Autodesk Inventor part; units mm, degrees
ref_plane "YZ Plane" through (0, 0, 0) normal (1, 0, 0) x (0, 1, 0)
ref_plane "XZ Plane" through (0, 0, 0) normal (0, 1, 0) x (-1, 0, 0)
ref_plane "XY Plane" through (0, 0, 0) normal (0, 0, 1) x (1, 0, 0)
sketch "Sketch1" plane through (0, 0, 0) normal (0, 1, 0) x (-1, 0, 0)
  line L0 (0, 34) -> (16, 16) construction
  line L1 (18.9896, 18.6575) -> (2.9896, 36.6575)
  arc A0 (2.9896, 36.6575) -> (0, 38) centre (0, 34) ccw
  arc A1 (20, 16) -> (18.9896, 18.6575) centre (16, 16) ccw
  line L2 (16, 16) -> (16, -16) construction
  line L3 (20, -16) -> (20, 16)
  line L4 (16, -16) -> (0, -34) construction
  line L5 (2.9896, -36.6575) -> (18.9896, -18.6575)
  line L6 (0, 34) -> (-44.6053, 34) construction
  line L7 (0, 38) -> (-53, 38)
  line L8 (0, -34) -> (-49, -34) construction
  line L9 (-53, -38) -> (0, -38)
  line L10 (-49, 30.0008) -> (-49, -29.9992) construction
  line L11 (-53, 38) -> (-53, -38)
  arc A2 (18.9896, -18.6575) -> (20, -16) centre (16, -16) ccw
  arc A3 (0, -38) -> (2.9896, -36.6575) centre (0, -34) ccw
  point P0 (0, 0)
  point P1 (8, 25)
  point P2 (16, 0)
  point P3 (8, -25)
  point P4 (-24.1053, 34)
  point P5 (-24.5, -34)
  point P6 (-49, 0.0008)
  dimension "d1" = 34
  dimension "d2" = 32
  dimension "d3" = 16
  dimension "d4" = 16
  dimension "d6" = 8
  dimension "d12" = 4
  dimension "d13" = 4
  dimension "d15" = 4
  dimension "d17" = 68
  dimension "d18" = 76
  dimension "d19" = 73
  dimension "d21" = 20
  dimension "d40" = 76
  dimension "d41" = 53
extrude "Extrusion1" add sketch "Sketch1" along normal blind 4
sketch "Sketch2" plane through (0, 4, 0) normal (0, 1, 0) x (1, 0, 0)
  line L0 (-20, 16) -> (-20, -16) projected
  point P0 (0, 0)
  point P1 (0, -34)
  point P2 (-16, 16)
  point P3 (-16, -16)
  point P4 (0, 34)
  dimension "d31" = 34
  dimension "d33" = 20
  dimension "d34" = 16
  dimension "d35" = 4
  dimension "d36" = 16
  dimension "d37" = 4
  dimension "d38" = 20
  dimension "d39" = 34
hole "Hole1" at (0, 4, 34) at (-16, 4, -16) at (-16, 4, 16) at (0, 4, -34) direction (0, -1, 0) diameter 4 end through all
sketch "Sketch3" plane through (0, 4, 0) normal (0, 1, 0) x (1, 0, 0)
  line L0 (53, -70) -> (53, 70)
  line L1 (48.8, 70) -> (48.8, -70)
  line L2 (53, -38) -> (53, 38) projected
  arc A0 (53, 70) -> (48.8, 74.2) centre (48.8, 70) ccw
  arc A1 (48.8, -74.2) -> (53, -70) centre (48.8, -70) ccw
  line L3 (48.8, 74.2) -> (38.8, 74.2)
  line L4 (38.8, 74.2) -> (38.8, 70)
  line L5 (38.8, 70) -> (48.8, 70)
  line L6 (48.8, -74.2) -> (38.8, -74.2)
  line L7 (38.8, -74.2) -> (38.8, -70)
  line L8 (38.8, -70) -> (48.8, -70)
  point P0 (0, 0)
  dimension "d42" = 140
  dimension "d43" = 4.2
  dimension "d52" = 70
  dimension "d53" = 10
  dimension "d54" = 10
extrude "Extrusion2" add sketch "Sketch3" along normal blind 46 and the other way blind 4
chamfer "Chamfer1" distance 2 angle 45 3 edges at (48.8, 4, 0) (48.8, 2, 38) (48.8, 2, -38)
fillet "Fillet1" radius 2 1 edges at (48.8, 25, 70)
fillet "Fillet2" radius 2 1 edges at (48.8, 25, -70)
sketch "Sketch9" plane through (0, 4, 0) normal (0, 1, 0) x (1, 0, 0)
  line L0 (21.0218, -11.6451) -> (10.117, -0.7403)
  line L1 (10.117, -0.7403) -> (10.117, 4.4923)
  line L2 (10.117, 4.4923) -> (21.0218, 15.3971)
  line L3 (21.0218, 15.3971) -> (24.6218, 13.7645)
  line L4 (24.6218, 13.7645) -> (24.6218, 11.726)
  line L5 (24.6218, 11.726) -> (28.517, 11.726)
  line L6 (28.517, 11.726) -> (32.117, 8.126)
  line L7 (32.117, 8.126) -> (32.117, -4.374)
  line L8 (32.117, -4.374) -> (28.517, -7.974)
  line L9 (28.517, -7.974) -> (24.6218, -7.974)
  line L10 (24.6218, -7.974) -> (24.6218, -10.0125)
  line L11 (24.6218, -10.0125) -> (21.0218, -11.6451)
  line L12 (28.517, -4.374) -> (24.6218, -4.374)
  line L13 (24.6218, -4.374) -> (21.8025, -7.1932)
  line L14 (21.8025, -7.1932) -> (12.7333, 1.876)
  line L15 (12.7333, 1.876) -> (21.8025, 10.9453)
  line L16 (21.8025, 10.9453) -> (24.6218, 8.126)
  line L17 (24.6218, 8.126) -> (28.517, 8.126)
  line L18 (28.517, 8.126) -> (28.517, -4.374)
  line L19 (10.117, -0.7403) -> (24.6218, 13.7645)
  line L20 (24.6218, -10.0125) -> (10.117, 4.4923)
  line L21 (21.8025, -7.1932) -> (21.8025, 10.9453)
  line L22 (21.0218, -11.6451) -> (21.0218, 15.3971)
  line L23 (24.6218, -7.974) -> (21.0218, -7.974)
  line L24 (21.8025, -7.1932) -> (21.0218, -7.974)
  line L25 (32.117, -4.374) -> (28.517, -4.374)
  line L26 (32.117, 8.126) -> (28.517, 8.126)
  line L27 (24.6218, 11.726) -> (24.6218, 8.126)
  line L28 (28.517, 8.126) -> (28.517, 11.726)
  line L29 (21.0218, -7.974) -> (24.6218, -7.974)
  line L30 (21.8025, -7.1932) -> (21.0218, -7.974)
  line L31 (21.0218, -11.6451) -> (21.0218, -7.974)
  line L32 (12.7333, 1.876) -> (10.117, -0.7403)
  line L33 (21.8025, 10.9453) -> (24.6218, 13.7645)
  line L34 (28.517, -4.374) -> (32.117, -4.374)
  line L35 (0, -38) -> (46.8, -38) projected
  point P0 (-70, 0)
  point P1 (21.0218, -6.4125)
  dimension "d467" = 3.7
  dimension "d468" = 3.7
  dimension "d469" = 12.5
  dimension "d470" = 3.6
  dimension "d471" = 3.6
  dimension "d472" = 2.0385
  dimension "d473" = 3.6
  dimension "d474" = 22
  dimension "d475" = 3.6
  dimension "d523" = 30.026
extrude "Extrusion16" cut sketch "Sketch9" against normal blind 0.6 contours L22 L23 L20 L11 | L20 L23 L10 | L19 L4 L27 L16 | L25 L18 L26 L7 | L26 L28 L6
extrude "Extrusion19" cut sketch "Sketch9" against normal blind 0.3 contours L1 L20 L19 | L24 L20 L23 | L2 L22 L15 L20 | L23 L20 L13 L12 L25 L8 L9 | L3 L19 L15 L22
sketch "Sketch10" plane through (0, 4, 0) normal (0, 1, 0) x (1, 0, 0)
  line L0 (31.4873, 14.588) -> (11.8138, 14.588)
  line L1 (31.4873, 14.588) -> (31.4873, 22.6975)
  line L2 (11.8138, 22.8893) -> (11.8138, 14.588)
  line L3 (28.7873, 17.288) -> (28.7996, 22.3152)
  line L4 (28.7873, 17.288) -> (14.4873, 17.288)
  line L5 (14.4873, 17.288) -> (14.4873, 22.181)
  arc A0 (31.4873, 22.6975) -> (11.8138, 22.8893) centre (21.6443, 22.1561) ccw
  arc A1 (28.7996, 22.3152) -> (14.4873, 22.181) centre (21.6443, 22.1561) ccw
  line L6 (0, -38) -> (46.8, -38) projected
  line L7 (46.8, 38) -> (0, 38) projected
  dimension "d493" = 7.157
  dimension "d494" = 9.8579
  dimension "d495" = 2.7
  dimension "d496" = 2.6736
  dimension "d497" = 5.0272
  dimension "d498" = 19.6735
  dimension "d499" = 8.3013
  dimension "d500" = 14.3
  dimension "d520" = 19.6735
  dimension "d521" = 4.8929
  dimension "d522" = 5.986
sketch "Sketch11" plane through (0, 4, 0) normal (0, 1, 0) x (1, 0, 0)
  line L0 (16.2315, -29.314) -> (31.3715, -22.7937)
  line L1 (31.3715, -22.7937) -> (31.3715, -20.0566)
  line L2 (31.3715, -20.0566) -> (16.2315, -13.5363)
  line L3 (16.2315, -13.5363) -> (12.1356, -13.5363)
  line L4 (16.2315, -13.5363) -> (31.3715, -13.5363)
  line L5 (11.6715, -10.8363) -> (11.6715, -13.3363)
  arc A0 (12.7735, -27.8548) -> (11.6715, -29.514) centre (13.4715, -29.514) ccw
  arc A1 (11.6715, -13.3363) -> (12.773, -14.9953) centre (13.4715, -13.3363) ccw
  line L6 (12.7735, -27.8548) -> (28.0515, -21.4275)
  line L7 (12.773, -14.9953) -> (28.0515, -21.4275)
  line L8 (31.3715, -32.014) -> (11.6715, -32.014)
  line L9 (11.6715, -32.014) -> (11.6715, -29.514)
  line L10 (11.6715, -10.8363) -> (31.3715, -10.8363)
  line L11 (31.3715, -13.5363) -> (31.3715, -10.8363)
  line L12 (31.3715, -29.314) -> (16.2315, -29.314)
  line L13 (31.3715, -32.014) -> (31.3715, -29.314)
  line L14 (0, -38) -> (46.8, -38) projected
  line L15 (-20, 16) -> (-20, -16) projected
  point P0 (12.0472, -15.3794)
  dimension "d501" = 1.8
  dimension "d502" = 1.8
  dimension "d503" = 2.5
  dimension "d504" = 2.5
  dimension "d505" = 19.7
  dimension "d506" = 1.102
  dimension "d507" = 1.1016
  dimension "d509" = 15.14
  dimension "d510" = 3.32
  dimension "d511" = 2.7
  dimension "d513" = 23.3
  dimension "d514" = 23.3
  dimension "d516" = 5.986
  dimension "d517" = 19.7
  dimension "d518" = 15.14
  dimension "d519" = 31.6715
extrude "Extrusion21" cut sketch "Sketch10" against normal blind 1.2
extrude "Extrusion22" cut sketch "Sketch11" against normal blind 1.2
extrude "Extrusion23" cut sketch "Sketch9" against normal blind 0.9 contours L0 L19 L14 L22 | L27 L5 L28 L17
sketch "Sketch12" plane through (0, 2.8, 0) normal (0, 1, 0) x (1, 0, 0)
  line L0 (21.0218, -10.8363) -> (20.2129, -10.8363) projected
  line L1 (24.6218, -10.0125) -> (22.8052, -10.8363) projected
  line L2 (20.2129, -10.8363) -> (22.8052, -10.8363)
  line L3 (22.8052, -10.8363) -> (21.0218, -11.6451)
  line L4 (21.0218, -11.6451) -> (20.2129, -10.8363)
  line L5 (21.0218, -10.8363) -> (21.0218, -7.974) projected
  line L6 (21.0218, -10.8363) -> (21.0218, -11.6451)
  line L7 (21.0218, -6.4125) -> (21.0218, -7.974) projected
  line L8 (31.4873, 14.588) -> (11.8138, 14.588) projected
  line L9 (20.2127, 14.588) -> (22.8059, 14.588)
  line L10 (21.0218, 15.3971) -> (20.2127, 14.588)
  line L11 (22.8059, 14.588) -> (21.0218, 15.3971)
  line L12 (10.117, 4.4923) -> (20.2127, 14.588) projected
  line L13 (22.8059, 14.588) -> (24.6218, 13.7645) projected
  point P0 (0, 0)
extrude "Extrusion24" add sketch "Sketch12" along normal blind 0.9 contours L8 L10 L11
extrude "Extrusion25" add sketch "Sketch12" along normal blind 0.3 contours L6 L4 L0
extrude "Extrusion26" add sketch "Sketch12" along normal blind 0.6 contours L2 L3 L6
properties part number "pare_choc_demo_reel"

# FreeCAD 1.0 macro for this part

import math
import FreeCAD as App
import Part
import Sketcher
from FreeCAD import Vector
Q = App.Units.Quantity


def edges_at(feature, points):
    """Names of the edges that pass closest to the given points."""
    edges = feature.Shape.Edges
    near = lambda p: min(range(len(edges)), key=lambda i: edges[i].distToShape(Part.Vertex(*p))[0])
    return sorted({f"Edge{near(p) + 1}" for p in points})

doc = App.newDocument("Part")
body = doc.addObject("PartDesign::Body", "Body")

# Sketch on XZ plane
sketch1 = doc.addObject("Sketcher::SketchObject", "Sketch")
body.addObject(sketch1)
sketch1.AttachmentSupport = (doc.XZ_Plane, [""])
sketch1.MapMode = "FlatFace"
sketch1.addGeometry(Part.ArcOfCircle(Part.Circle(Vector(-16, 16, 0), Vector(0, 0, 1), 4), math.radians(138.365628), math.radians(180)), False)
sketch1.addGeometry(Part.LineSegment(Vector(-18.9896, 18.6575, 0), Vector(-2.9896, 36.6575, 0)), False)
sketch1.addGeometry(Part.ArcOfCircle(Part.Circle(Vector(0, 34, 0), Vector(0, 0, 1), 4.000002), math.radians(90), math.radians(138.365628)), False)
sketch1.addGeometry(Part.LineSegment(Vector(0, 38, 0), Vector(53, 38, 0)), False)
sketch1.addGeometry(Part.LineSegment(Vector(53, 38, 0), Vector(53, -38, 0)), False)
sketch1.addGeometry(Part.LineSegment(Vector(53, -38, 0), Vector(0, -38, 0)), False)
sketch1.addGeometry(Part.ArcOfCircle(Part.Circle(Vector(0, -34, 0), Vector(0, 0, 1), 4), math.radians(-138.365628), math.radians(-90)), False)
sketch1.addGeometry(Part.LineSegment(Vector(-2.9896, -36.6575, 0), Vector(-18.9896, -18.6575, 0)), False)
sketch1.addGeometry(Part.ArcOfCircle(Part.Circle(Vector(-16, -16, 0), Vector(0, 0, 1), 4.000002), math.radians(180), math.radians(221.634372)), False)
sketch1.addGeometry(Part.LineSegment(Vector(-20, -16, 0), Vector(-20, 16, 0)), False)
sketch1.addConstraint(Sketcher.Constraint("Tangent", 0, 1, 1, 1))
sketch1.addConstraint(Sketcher.Constraint("Tangent", 1, 2, 2, 2))
sketch1.addConstraint(Sketcher.Constraint("Tangent", 2, 1, 3, 1))
sketch1.addConstraint(Sketcher.Constraint("Coincident", 3, 2, 4, 1))
sketch1.addConstraint(Sketcher.Constraint("Coincident", 4, 2, 5, 1))
sketch1.addConstraint(Sketcher.Constraint("Tangent", 5, 2, 6, 2))
sketch1.addConstraint(Sketcher.Constraint("Tangent", 6, 1, 7, 1))
sketch1.addConstraint(Sketcher.Constraint("Tangent", 7, 2, 8, 2))
sketch1.addConstraint(Sketcher.Constraint("Tangent", 8, 1, 9, 1))
sketch1.addConstraint(Sketcher.Constraint("Tangent", 9, 2, 0, 2))
sketch1.addConstraint(Sketcher.Constraint("Horizontal", 3))
sketch1.addConstraint(Sketcher.Constraint("Vertical", 4))
sketch1.addConstraint(Sketcher.Constraint("Horizontal", 5))
sketch1.addConstraint(Sketcher.Constraint("Vertical", 9))
sketch1.addConstraint(Sketcher.Constraint("Equal", 0, 2))
sketch1.addConstraint(Sketcher.Constraint("Equal", 2, 6))
sketch1.addConstraint(Sketcher.Constraint("Equal", 6, 8))
sketch1.addConstraint(Sketcher.Constraint("Symmetric", 2, 3, 6, 3, -1, 1))
sketch1.addConstraint(Sketcher.Constraint("Symmetric", 1, 2, 6, 1, -1))
sketch1.addConstraint(Sketcher.Constraint("Radius", 0, 4.0))
sketch1.addConstraint(Sketcher.Constraint("DistanceX", 3, 1, 3, 2, 53.0))
sketch1.addConstraint(Sketcher.Constraint("DistanceY", 4, 2, 4, 1, 76.0))
sketch1.addConstraint(Sketcher.Constraint("DistanceY", 9, 1, 9, 2, 32.0))
sketch1.addConstraint(Sketcher.Constraint("DistanceX", 0, 3, -1, 1, 16.0))
pad1 = doc.addObject("PartDesign::Pad", "Pad")
body.addObject(pad1)
pad1.Profile = sketch1
pad1.Length = 4
pad1.Reversed = True

# Sketch on XZ plane
sketch2 = doc.addObject("Sketcher::SketchObject", "Sketch001")
body.addObject(sketch2)
sketch2.AttachmentSupport = (doc.XZ_Plane, [""])
sketch2.MapMode = "FlatFace"
sketch2.AttachmentOffset = App.Placement(Vector(0, 0, -4), App.Rotation())
sketch2.addGeometry(Part.Circle(Vector(0, 34, 0), Vector(0, 0, 1), 2), False)
sketch2.addGeometry(Part.Circle(Vector(-16, -16, 0), Vector(0, 0, 1), 2), False)
sketch2.addGeometry(Part.Circle(Vector(-16, 16, 0), Vector(0, 0, 1), 2), False)
sketch2.addGeometry(Part.Circle(Vector(0, -34, 0), Vector(0, 0, 1), 2), False)
sketch2.addConstraint(Sketcher.Constraint("Equal", 0, 1))
sketch2.addConstraint(Sketcher.Constraint("Equal", 1, 2))
sketch2.addConstraint(Sketcher.Constraint("Equal", 2, 3))
sketch2.addConstraint(Sketcher.Constraint("Symmetric", 0, 3, 3, 3, -1, 1))
sketch2.addConstraint(Sketcher.Constraint("Symmetric", 1, 3, 2, 3, -1))
sketch2.addConstraint(Sketcher.Constraint("PointOnObject", 0, 3, -2))
sketch2.addConstraint(Sketcher.Constraint("Diameter", 0, 4.0))
sketch2.addConstraint(Sketcher.Constraint("DistanceY", -1, 1, 0, 3, 34.0))
sketch2.addConstraint(Sketcher.Constraint("DistanceX", 1, 3, -1, 1, 16.0))
sketch2.addConstraint(Sketcher.Constraint("DistanceY", 1, 3, -1, 1, 16.0))
doc.recompute()
hole = doc.addObject("PartDesign::Hole", "Hole")
body.addObject(hole)
hole.Profile = sketch2
hole.ThreadType = "None"
hole.Diameter = 4
hole.DepthType = "ThroughAll"
hole.Reversed = True

# Sketch on XZ plane
sketch3 = doc.addObject("Sketcher::SketchObject", "Sketch002")
body.addObject(sketch3)
sketch3.AttachmentSupport = (doc.XZ_Plane, [""])
sketch3.MapMode = "FlatFace"
sketch3.AttachmentOffset = App.Placement(Vector(0, 0, -4), App.Rotation())
sketch3.addGeometry(Part.ArcOfCircle(Part.Circle(Vector(48.8, 70, 0), Vector(0, 0, 1), 4.2), math.radians(0), math.radians(90)), False)
sketch3.addGeometry(Part.LineSegment(Vector(53, 70, 0), Vector(53, -70, 0)), False)
sketch3.addGeometry(Part.ArcOfCircle(Part.Circle(Vector(48.8, -70, 0), Vector(0, 0, 1), 4.2), math.radians(-90), math.radians(0)), False)
sketch3.addGeometry(Part.LineSegment(Vector(48.8, -74.2, 0), Vector(38.8, -74.2, 0)), False)
sketch3.addGeometry(Part.LineSegment(Vector(38.8, -74.2, 0), Vector(38.8, -70, 0)), False)
sketch3.addGeometry(Part.LineSegment(Vector(38.8, -70, 0), Vector(48.8, -70, 0)), False)
sketch3.addGeometry(Part.LineSegment(Vector(48.8, -70, 0), Vector(48.8, 70, 0)), False)
sketch3.addGeometry(Part.LineSegment(Vector(48.8, 70, 0), Vector(38.8, 70, 0)), False)
sketch3.addGeometry(Part.LineSegment(Vector(38.8, 70, 0), Vector(38.8, 74.2, 0)), False)
sketch3.addGeometry(Part.LineSegment(Vector(38.8, 74.2, 0), Vector(48.8, 74.2, 0)), False)
sketch3.addConstraint(Sketcher.Constraint("Tangent", 0, 1, 1, 1))
sketch3.addConstraint(Sketcher.Constraint("Tangent", 1, 2, 2, 2))
sketch3.addConstraint(Sketcher.Constraint("Tangent", 2, 1, 3, 1))
sketch3.addConstraint(Sketcher.Constraint("Coincident", 3, 2, 4, 1))
sketch3.addConstraint(Sketcher.Constraint("Coincident", 4, 2, 5, 1))
sketch3.addConstraint(Sketcher.Constraint("Coincident", 5, 2, 6, 1))
sketch3.addConstraint(Sketcher.Constraint("Coincident", 6, 2, 7, 1))
sketch3.addConstraint(Sketcher.Constraint("Coincident", 7, 2, 8, 1))
sketch3.addConstraint(Sketcher.Constraint("Coincident", 8, 2, 9, 1))
sketch3.addConstraint(Sketcher.Constraint("Tangent", 9, 2, 0, 2))
sketch3.addConstraint(Sketcher.Constraint("Vertical", 1))
sketch3.addConstraint(Sketcher.Constraint("Horizontal", 3))
sketch3.addConstraint(Sketcher.Constraint("Vertical", 4))
sketch3.addConstraint(Sketcher.Constraint("Horizontal", 5))
sketch3.addConstraint(Sketcher.Constraint("Vertical", 6))
sketch3.addConstraint(Sketcher.Constraint("Horizontal", 7))
sketch3.addConstraint(Sketcher.Constraint("Vertical", 8))
sketch3.addConstraint(Sketcher.Constraint("Horizontal", 9))
sketch3.addConstraint(Sketcher.Constraint("Coincident", 5, 2, 2, 3))
sketch3.addConstraint(Sketcher.Constraint("Coincident", 6, 2, 0, 3))
sketch3.addConstraint(Sketcher.Constraint("Symmetric", 4, 2, 7, 2, -1))
sketch3.addConstraint(Sketcher.Constraint("Radius", 0, 4.2))
sketch3.addConstraint(Sketcher.Constraint("DistanceX", 3, 2, 3, 1, 10.0))
sketch3.addConstraint(Sketcher.Constraint("DistanceY", 1, 2, 1, 1, 140.0))
sketch3.addConstraint(Sketcher.Constraint("DistanceX", -1, 1, 0, 1, 53.0))
pad2 = doc.addObject("PartDesign::Pad", "Pad001")
body.addObject(pad2)
pad2.Profile = sketch3
pad2.Type = "TwoLengths"
pad2.Length = 46
pad2.Length2 = 4
pad2.Reversed = True
doc.recompute()

chamfer = doc.addObject("PartDesign::Chamfer", "Chamfer")
body.addObject(chamfer)
chamfer.Base = (pad2, edges_at(pad2, [(48.8, 4, 0), (48.8, 2, 38), (48.8, 2, -38)]))
chamfer.Size = 2
doc.recompute()

fillet = doc.addObject("PartDesign::Fillet", "Fillet")
body.addObject(fillet)
fillet.Base = (chamfer, edges_at(chamfer, [(48.8, 25, 70)]))
fillet.Radius = 2
doc.recompute()

fillet2 = doc.addObject("PartDesign::Fillet", "Fillet001")
body.addObject(fillet2)
fillet2.Base = (fillet, edges_at(fillet, [(48.8, 25, -70)]))
fillet2.Radius = 2

# Sketch on XZ plane
sketch4 = doc.addObject("Sketcher::SketchObject", "Sketch003")
body.addObject(sketch4)
sketch4.AttachmentSupport = (doc.XZ_Plane, [""])
sketch4.MapMode = "FlatFace"
sketch4.AttachmentOffset = App.Placement(Vector(0, 0, -4), App.Rotation())
sketch4.addGeometry(Part.LineSegment(Vector(21.0218, 7.974, 0), Vector(21.0218, 11.6451, 0)), False)
sketch4.addGeometry(Part.LineSegment(Vector(21.0218, 11.6451, 0), Vector(24.6218, 10.0125, 0)), False)
sketch4.addGeometry(Part.LineSegment(Vector(24.6218, 10.0125, 0), Vector(24.6218, 7.974, 0)), False)
sketch4.addGeometry(Part.LineSegment(Vector(24.6218, 7.974, 0), Vector(21.0218, 7.974, 0)), False)
sketch4.addGeometry(Part.LineSegment(Vector(24.6218, -13.7645, 0), Vector(21.80255, -10.94525, 0)), False)
sketch4.addGeometry(Part.LineSegment(Vector(21.8025, -10.9453, 0), Vector(24.6218, -8.126, 0)), False)
sketch4.addGeometry(Part.LineSegment(Vector(24.6218, -8.126, 0), Vector(24.6218, -13.7645, 0)), False)
sketch4.addGeometry(Part.LineSegment(Vector(28.517, 4.374, 0), Vector(32.117, 4.374, 0)), False)
sketch4.addGeometry(Part.LineSegment(Vector(32.117, 4.374, 0), Vector(32.117, -8.126, 0)), False)
sketch4.addGeometry(Part.LineSegment(Vector(32.117, -8.126, 0), Vector(28.517, -11.726, 0)), False)
sketch4.addGeometry(Part.LineSegment(Vector(28.517, -11.726, 0), Vector(28.517, 4.374, 0)), False)
sketch4.addConstraint(Sketcher.Constraint("Coincident", 0, 2, 1, 1))
sketch4.addConstraint(Sketcher.Constraint("Coincident", 1, 2, 2, 1))
sketch4.addConstraint(Sketcher.Constraint("Coincident", 2, 2, 3, 1))
sketch4.addConstraint(Sketcher.Constraint("Coincident", 3, 2, 0, 1))
sketch4.addConstraint(Sketcher.Constraint("Coincident", 4, 2, 5, 1))
sketch4.addConstraint(Sketcher.Constraint("Coincident", 5, 2, 6, 1))
sketch4.addConstraint(Sketcher.Constraint("Coincident", 6, 2, 4, 1))
sketch4.addConstraint(Sketcher.Constraint("Coincident", 7, 2, 8, 1))
sketch4.addConstraint(Sketcher.Constraint("Coincident", 8, 2, 9, 1))
sketch4.addConstraint(Sketcher.Constraint("Coincident", 9, 2, 10, 1))
sketch4.addConstraint(Sketcher.Constraint("Coincident", 10, 2, 7, 1))
sketch4.addConstraint(Sketcher.Constraint("Vertical", 0))
sketch4.addConstraint(Sketcher.Constraint("Vertical", 2))
sketch4.addConstraint(Sketcher.Constraint("Horizontal", 3))
sketch4.addConstraint(Sketcher.Constraint("Vertical", 6))
sketch4.addConstraint(Sketcher.Constraint("Horizontal", 7))
sketch4.addConstraint(Sketcher.Constraint("Vertical", 8))
sketch4.addConstraint(Sketcher.Constraint("Vertical", 10))
sketch4.addConstraint(Sketcher.Constraint("Perpendicular", 4, 5))
sketch4.addConstraint(Sketcher.Constraint("Parallel", 5, 9))
sketch4.addConstraint(Sketcher.Constraint("Horizontal", 5, 2, 8, 2))
sketch4.addConstraint(Sketcher.Constraint("Vertical", 2, 2, 5, 2))
sketch4.addConstraint(Sketcher.Constraint("Equal", 3, 7))
sketch4.addConstraint(Sketcher.Constraint("Equal", 4, 5))
sketch4.addConstraint(Sketcher.Constraint("DistanceX", 3, 2, 3, 1, 3.6))
sketch4.addConstraint(Sketcher.Constraint("DistanceY", 8, 2, 8, 1, 12.5))
sketch4.addConstraint(Sketcher.Constraint("DistanceY", 7, 2, 2, 2, 3.6))
sketch4.addConstraint(Sketcher.Constraint("DistanceY", 2, 2, 2, 1, 2.0385))
sketch4.addConstraint(Sketcher.Constraint("DistanceY", 6, 2, 9, 2, 2.0385))
sketch4.addConstraint(Sketcher.Constraint("DistanceY", 0, 1, 0, 2, 3.671))
sketch4.addConstraint(Sketcher.Constraint("DistanceY", -1, 1, 0, 2, 11.645))
sketch4.addConstraint(Sketcher.Constraint("DistanceX", -1, 1, 7, 2, 32.117))
sketch4.addConstraint(Sketcher.Constraint("DistanceX", -1, 1, 0, 2, 21.0218))
pocket1 = doc.addObject("PartDesign::Pocket", "Pocket")
body.addObject(pocket1)
pocket1.Profile = sketch4
pocket1.Length = 0.6
pocket1.Reversed = True

# Sketch on XZ plane
sketch5 = doc.addObject("Sketcher::SketchObject", "Sketch004")
body.addObject(sketch5)
sketch5.AttachmentSupport = (doc.XZ_Plane, [""])
sketch5.MapMode = "FlatFace"
sketch5.AttachmentOffset = App.Placement(Vector(0, 0, -4), App.Rotation())
sketch5.addGeometry(Part.LineSegment(Vector(10.117, -4.4923, 0), Vector(10.117, 0.7403, 0)), False)
sketch5.addGeometry(Part.LineSegment(Vector(10.117, 0.7403, 0), Vector(12.7333, -1.876, 0)), False)
sketch5.addGeometry(Part.LineSegment(Vector(12.7333, -1.876, 0), Vector(21.8025, -10.9453, 0)), False)
sketch5.addGeometry(Part.LineSegment(Vector(21.80255, -10.94525, 0), Vector(24.6218, -13.7645, 0)), False)
sketch5.addGeometry(Part.LineSegment(Vector(24.6218, -13.7645, 0), Vector(21.0218, -15.3971, 0)), False)
sketch5.addGeometry(Part.LineSegment(Vector(21.0218, -15.3971, 0), Vector(10.117, -4.4923, 0)), False)
sketch5.addGeometry(Part.LineSegment(Vector(21.8025, 7.1932, 0), Vector(21.0218, 7.974, 0)), False)
sketch5.addGeometry(Part.LineSegment(Vector(21.0218, 7.974, 0), Vector(28.517, 7.974, 0)), False)
sketch5.addGeometry(Part.LineSegment(Vector(28.517, 7.974, 0), Vector(32.117, 4.374, 0)), False)
sketch5.addGeometry(Part.LineSegment(Vector(32.117, 4.374, 0), Vector(24.6218, 4.374, 0)), False)
sketch5.addGeometry(Part.LineSegment(Vector(24.6218, 4.374, 0), Vector(21.8025, 7.1932, 0)), False)
sketch5.addConstraint(Sketcher.Constraint("Coincident", 0, 2, 1, 1))
sketch5.addConstraint(Sketcher.Constraint("Coincident", 1, 2, 2, 1))
sketch5.addConstraint(Sketcher.Constraint("Coincident", 2, 2, 3, 1))
sketch5.addConstraint(Sketcher.Constraint("Coincident", 3, 2, 4, 1))
sketch5.addConstraint(Sketcher.Constraint("Coincident", 4, 2, 5, 1))
sketch5.addConstraint(Sketcher.Constraint("Coincident", 5, 2, 0, 1))
sketch5.addConstraint(Sketcher.Constraint("Coincident", 6, 2, 7, 1))
sketch5.addConstraint(Sketcher.Constraint("Coincident", 7, 2, 8, 1))
sketch5.addConstraint(Sketcher.Constraint("Coincident", 8, 2, 9, 1))
sketch5.addConstraint(Sketcher.Constraint("Coincident", 9, 2, 10, 1))
sketch5.addConstraint(Sketcher.Constraint("Coincident", 10, 2, 6, 1))
sketch5.addConstraint(Sketcher.Constraint("Vertical", 0))
sketch5.addConstraint(Sketcher.Constraint("Horizontal", 7))
sketch5.addConstraint(Sketcher.Constraint("Horizontal", 9))
sketch5.addConstraint(Sketcher.Constraint("Parallel", 1, 2))
sketch5.addConstraint(Sketcher.Constraint("Parallel", 2, 3))
sketch5.addConstraint(Sketcher.Constraint("Parallel", 3, 5))
sketch5.addConstraint(Sketcher.Constraint("Parallel", 5, 6))
sketch5.addConstraint(Sketcher.Constraint("Parallel", 6, 8))
sketch5.addConstraint(Sketcher.Constraint("Parallel", 8, 10))
sketch5.addConstraint(Sketcher.Constraint("Vertical", 4, 2, 6, 2))
sketch5.addConstraint(Sketcher.Constraint("Vertical", 3, 2, 9, 2))
sketch5.addConstraint(Sketcher.Constraint("Vertical", 2, 2, 10, 2))
sketch5.addConstraint(Sketcher.Constraint("Distance", 1, 3.7))
sketch5.addConstraint(Sketcher.Constraint("DistanceX", 4, 2, 3, 2, 3.6))
sketch5.addConstraint(Sketcher.Constraint("DistanceY", 8, 2, 7, 2, 3.6))
sketch5.addConstraint(Sketcher.Constraint("DistanceX", 0, 2, 7, 2, 18.4))
sketch5.addConstraint(Sketcher.Constraint("DistanceY", 1, 2, 6, 2, 9.85))
sketch5.addConstraint(Sketcher.Constraint("Distance", 3, 3.987))
sketch5.addConstraint(Sketcher.Constraint("Distance", 4, 3.953))
sketch5.addConstraint(Sketcher.Constraint("DistanceX", 7, 1, 7, 2, 7.4952))
sketch5.addConstraint(Sketcher.Constraint("DistanceX", -1, 1, 0, 2, 10.117))
sketch5.addConstraint(Sketcher.Constraint("DistanceY", 1, 2, -1, 1, 1.876))
pocket2 = doc.addObject("PartDesign::Pocket", "Pocket001")
body.addObject(pocket2)
pocket2.Profile = sketch5
pocket2.Length = 0.3
pocket2.Reversed = True

# Sketch on XZ plane
sketch6 = doc.addObject("Sketcher::SketchObject", "Sketch005")
body.addObject(sketch6)
sketch6.AttachmentSupport = (doc.XZ_Plane, [""])
sketch6.MapMode = "FlatFace"
sketch6.AttachmentOffset = App.Placement(Vector(0, 0, -4), App.Rotation())
sketch6.addGeometry(Part.LineSegment(Vector(11.8138, -14.588, 0), Vector(31.4873, -14.588, 0)), False)
sketch6.addGeometry(Part.LineSegment(Vector(31.4873, -14.588, 0), Vector(31.4873, -22.6975, 0)), False)
sketch6.addGeometry(Part.ArcOfCircle(Part.Circle(Vector(21.6443, -22.1561, 0), Vector(0, 0, 1), 9.857878), math.radians(-175.734538), math.radians(-3.148299)), False)
sketch6.addGeometry(Part.LineSegment(Vector(11.8138, -22.8893, 0), Vector(11.8138, -14.588, 0)), False)
sketch6.addGeometry(Part.LineSegment(Vector(28.7996, -22.3152, 0), Vector(28.7873, -17.288, 0)), False)
sketch6.addGeometry(Part.LineSegment(Vector(28.7873, -17.288, 0), Vector(14.4873, -17.288, 0)), False)
sketch6.addGeometry(Part.LineSegment(Vector(14.4873, -17.288, 0), Vector(14.4873, -22.181, 0)), False)
sketch6.addGeometry(Part.ArcOfCircle(Part.Circle(Vector(21.6443, -22.1561, 0), Vector(0, 0, 1), 7.157069), math.radians(-179.800662), math.radians(-1.273777)), False)
sketch6.addConstraint(Sketcher.Constraint("Coincident", 0, 2, 1, 1))
sketch6.addConstraint(Sketcher.Constraint("Coincident", 1, 2, 2, 2))
sketch6.addConstraint(Sketcher.Constraint("Coincident", 2, 1, 3, 1))
sketch6.addConstraint(Sketcher.Constraint("Coincident", 3, 2, 0, 1))
sketch6.addConstraint(Sketcher.Constraint("Coincident", 4, 2, 5, 1))
sketch6.addConstraint(Sketcher.Constraint("Coincident", 5, 2, 6, 1))
sketch6.addConstraint(Sketcher.Constraint("Coincident", 6, 2, 7, 1))
sketch6.addConstraint(Sketcher.Constraint("Coincident", 7, 2, 4, 1))
sketch6.addConstraint(Sketcher.Constraint("Horizontal", 0))
sketch6.addConstraint(Sketcher.Constraint("Vertical", 1))
sketch6.addConstraint(Sketcher.Constraint("Vertical", 3))
sketch6.addConstraint(Sketcher.Constraint("Horizontal", 5))
sketch6.addConstraint(Sketcher.Constraint("Vertical", 6))
sketch6.addConstraint(Sketcher.Constraint("Coincident", 7, 3, 2, 3))
sketch6.addConstraint(Sketcher.Constraint("DistanceX", 5, 2, 5, 1, 14.3))
sketch6.addConstraint(Sketcher.Constraint("Radius", 7, 7.157))
sketch6.addConstraint(Sketcher.Constraint("Radius", 2, 9.8579))
sketch6.addConstraint(Sketcher.Constraint("DistanceX", 4, 2, 0, 2, 2.7))
sketch6.addConstraint(Sketcher.Constraint("DistanceY", 4, 2, 0, 2, 2.7))
sketch6.addConstraint(Sketcher.Constraint("DistanceY", 6, 2, 6, 1, 4.893))
sketch6.addConstraint(Sketcher.Constraint("DistanceX", 0, 1, 0, 2, 19.6735))
sketch6.addConstraint(Sketcher.Constraint("DistanceY", 3, 1, 3, 2, 8.3013))
sketch6.addConstraint(Sketcher.Constraint("Distance", 4, 5.0272))
sketch6.addConstraint(Sketcher.Constraint("DistanceY", 2, 3, -1, 1, 22.156))
sketch6.addConstraint(Sketcher.Constraint("DistanceX", -1, 1, 2, 3, 21.6443))
pocket3 = doc.addObject("PartDesign::Pocket", "Pocket002")
body.addObject(pocket3)
pocket3.Profile = sketch6
pocket3.Length = 1.2
pocket3.Reversed = True

# Sketch on XZ plane
sketch7 = doc.addObject("Sketcher::SketchObject", "Sketch006")
body.addObject(sketch7)
sketch7.AttachmentSupport = (doc.XZ_Plane, [""])
sketch7.MapMode = "FlatFace"
sketch7.AttachmentOffset = App.Placement(Vector(0, 0, -4), App.Rotation())
sketch7.addGeometry(Part.LineSegment(Vector(31.3715, 29.314, 0), Vector(16.2315, 29.314, 0)), False)
sketch7.addGeometry(Part.LineSegment(Vector(16.2315, 29.314, 0), Vector(31.3715, 22.7937, 0)), False)
sketch7.addGeometry(Part.LineSegment(Vector(31.3715, 22.7937, 0), Vector(31.3715, 20.0566, 0)), False)
sketch7.addGeometry(Part.LineSegment(Vector(31.3715, 20.0566, 0), Vector(16.2315, 13.5363, 0)), False)
sketch7.addGeometry(Part.LineSegment(Vector(16.2315, 13.5363, 0), Vector(31.3715, 13.5363, 0)), False)
sketch7.addGeometry(Part.LineSegment(Vector(31.3715, 13.5363, 0), Vector(31.3715, 10.8363, 0)), False)
sketch7.addGeometry(Part.LineSegment(Vector(31.3715, 10.8363, 0), Vector(11.6715, 10.8363, 0)), False)
sketch7.addGeometry(Part.LineSegment(Vector(11.6715, 10.8363, 0), Vector(11.6715, 13.3363, 0)), False)
sketch7.addGeometry(Part.ArcOfCircle(Part.Circle(Vector(13.4715, 13.3363, 0), Vector(0, 0, 1), 1.8), math.radians(112.832882), math.radians(180)), False)
sketch7.addGeometry(Part.LineSegment(Vector(12.773, 14.9953, 0), Vector(28.0515, 21.4275, 0)), False)
sketch7.addGeometry(Part.LineSegment(Vector(28.0515, 21.4275, 0), Vector(12.7735, 27.8548, 0)), False)
sketch7.addGeometry(Part.ArcOfCircle(Part.Circle(Vector(13.4715, 29.514, 0), Vector(0, 0, 1), 1.800041), math.radians(180), math.radians(247.184256)), False)
sketch7.addGeometry(Part.LineSegment(Vector(11.6715, 29.514, 0), Vector(11.6715, 32.014, 0)), False)
sketch7.addGeometry(Part.LineSegment(Vector(11.6715, 32.014, 0), Vector(31.3715, 32.014, 0)), False)
sketch7.addGeometry(Part.LineSegment(Vector(31.3715, 32.014, 0), Vector(31.3715, 29.314, 0)), False)
sketch7.addConstraint(Sketcher.Constraint("Coincident", 0, 2, 1, 1))
sketch7.addConstraint(Sketcher.Constraint("Coincident", 1, 2, 2, 1))
sketch7.addConstraint(Sketcher.Constraint("Coincident", 2, 2, 3, 1))
sketch7.addConstraint(Sketcher.Constraint("Coincident", 3, 2, 4, 1))
sketch7.addConstraint(Sketcher.Constraint("Coincident", 4, 2, 5, 1))
sketch7.addConstraint(Sketcher.Constraint("Coincident", 5, 2, 6, 1))
sketch7.addConstraint(Sketcher.Constraint("Coincident", 6, 2, 7, 1))
sketch7.addConstraint(Sketcher.Constraint("Tangent", 7, 2, 8, 2))
sketch7.addConstraint(Sketcher.Constraint("Tangent", 8, 1, 9, 1))
sketch7.addConstraint(Sketcher.Constraint("Coincident", 9, 2, 10, 1))
sketch7.addConstraint(Sketcher.Constraint("Tangent", 10, 2, 11, 2))
sketch7.addConstraint(Sketcher.Constraint("Tangent", 11, 1, 12, 1))
sketch7.addConstraint(Sketcher.Constraint("Coincident", 12, 2, 13, 1))
sketch7.addConstraint(Sketcher.Constraint("Coincident", 13, 2, 14, 1))
sketch7.addConstraint(Sketcher.Constraint("Coincident", 14, 2, 0, 1))
sketch7.addConstraint(Sketcher.Constraint("Horizontal", 0))
sketch7.addConstraint(Sketcher.Constraint("Vertical", 2))
sketch7.addConstraint(Sketcher.Constraint("Horizontal", 4))
sketch7.addConstraint(Sketcher.Constraint("Vertical", 5))
sketch7.addConstraint(Sketcher.Constraint("Horizontal", 6))
sketch7.addConstraint(Sketcher.Constraint("Vertical", 7))
sketch7.addConstraint(Sketcher.Constraint("Vertical", 12))
sketch7.addConstraint(Sketcher.Constraint("Horizontal", 13))
sketch7.addConstraint(Sketcher.Constraint("Vertical", 14))
sketch7.addConstraint(Sketcher.Constraint("Equal", 8, 11))
sketch7.addConstraint(Sketcher.Constraint("Vertical", 8, 3, 11, 3))
sketch7.addConstraint(Sketcher.Constraint("Vertical", 0, 2, 3, 2))
sketch7.addConstraint(Sketcher.Constraint("Vertical", 2, 2, 4, 2))
sketch7.addConstraint(Sketcher.Constraint("Vertical", 5, 2, 13, 2))
sketch7.addConstraint(Sketcher.Constraint("Equal", 7, 12))
sketch7.addConstraint(Sketcher.Constraint("Equal", 5, 14))
sketch7.addConstraint(Sketcher.Constraint("Equal", 1, 3))
sketch7.addConstraint(Sketcher.Constraint("Radius", 8, 1.8))
sketch7.addConstraint(Sketcher.Constraint("DistanceX", 6, 2, 6, 1, 19.7))
sketch7.addConstraint(Sketcher.Constraint("DistanceY", 5, 2, 5, 1, 2.7))
sketch7.addConstraint(Sketcher.Constraint("DistanceY", 7, 1, 7, 2, 2.5))
sketch7.addConstraint(Sketcher.Constraint("Angle", 1, Q("-23.3 deg")))
sketch7.addConstraint(Sketcher.Constraint("DistanceX", 0, 2, 0, 1, 15.14))
sketch7.addConstraint(Sketcher.Constraint("DistanceX", 9, 2, 1, 2, 3.32))
sketch7.addConstraint(Sketcher.Constraint("DistanceX", 7, 2, 10, 2, 1.102))
sketch7.addConstraint(Sketcher.Constraint("Angle", 9, Q("22.831 deg")))
sketch7.addConstraint(Sketcher.Constraint("DistanceY", -1, 1, 11, 3, 29.514))
sketch7.addConstraint(Sketcher.Constraint("DistanceX", -1, 1, 8, 1, 12.773))
pocket4 = doc.addObject("PartDesign::Pocket", "Pocket003")
body.addObject(pocket4)
pocket4.Profile = sketch7
pocket4.Length = 1.2
pocket4.Reversed = True

# Sketch on XZ plane
sketch8 = doc.addObject("Sketcher::SketchObject", "Sketch007")
body.addObject(sketch8)
sketch8.AttachmentSupport = (doc.XZ_Plane, [""])
sketch8.MapMode = "FlatFace"
sketch8.AttachmentOffset = App.Placement(Vector(0, 0, -4), App.Rotation())
sketch8.addGeometry(Part.LineSegment(Vector(10.117, 0.7403, 0), Vector(21.0218, 11.6451, 0)), False)
sketch8.addGeometry(Part.LineSegment(Vector(21.0218, 11.6451, 0), Vector(21.0218, 6.4125, 0)), False)
sketch8.addGeometry(Part.LineSegment(Vector(21.0218, 6.4125, 0), Vector(12.7333, -1.876, 0)), False)
sketch8.addGeometry(Part.LineSegment(Vector(12.7333, -1.876, 0), Vector(10.117, 0.7403, 0)), False)
sketch8.addGeometry(Part.LineSegment(Vector(24.6218, -11.726, 0), Vector(24.6218, -8.126, 0)), False)
sketch8.addGeometry(Part.LineSegment(Vector(24.6218, -8.126, 0), Vector(28.517, -8.126, 0)), False)
sketch8.addGeometry(Part.LineSegment(Vector(28.517, -8.126, 0), Vector(28.517, -11.726, 0)), False)
sketch8.addGeometry(Part.LineSegment(Vector(28.517, -11.726, 0), Vector(24.6218, -11.726, 0)), False)
sketch8.addConstraint(Sketcher.Constraint("Coincident", 0, 2, 1, 1))
sketch8.addConstraint(Sketcher.Constraint("Coincident", 1, 2, 2, 1))
sketch8.addConstraint(Sketcher.Constraint("Coincident", 2, 2, 3, 1))
sketch8.addConstraint(Sketcher.Constraint("Coincident", 3, 2, 0, 1))
sketch8.addConstraint(Sketcher.Constraint("Coincident", 4, 2, 5, 1))
sketch8.addConstraint(Sketcher.Constraint("Coincident", 5, 2, 6, 1))
sketch8.addConstraint(Sketcher.Constraint("Coincident", 6, 2, 7, 1))
sketch8.addConstraint(Sketcher.Constraint("Coincident", 7, 2, 4, 1))
sketch8.addConstraint(Sketcher.Constraint("Vertical", 1))
sketch8.addConstraint(Sketcher.Constraint("Vertical", 4))
sketch8.addConstraint(Sketcher.Constraint("Horizontal", 5))
sketch8.addConstraint(Sketcher.Constraint("Vertical", 6))
sketch8.addConstraint(Sketcher.Constraint("Horizontal", 7))
sketch8.addConstraint(Sketcher.Constraint("Parallel", 0, 2))
sketch8.addConstraint(Sketcher.Constraint("Perpendicular", 2, 3))
sketch8.addConstraint(Sketcher.Constraint("DistanceY", 4, 1, 4, 2, 3.6))
sketch8.addConstraint(Sketcher.Constraint("Distance", 3, 3.7))
sketch8.addConstraint(Sketcher.Constraint("DistanceX", 1, 2, 4, 2, 3.6))
sketch8.addConstraint(Sketcher.Constraint("Angle", 0, Q("45 deg")))
sketch8.addConstraint(Sketcher.Constraint("DistanceX", 3, 2, 5, 2, 18.4))
sketch8.addConstraint(Sketcher.Constraint("DistanceY", 4, 2, 2, 2, 6.25))
sketch8.addConstraint(Sketcher.Constraint("DistanceX", 5, 1, 5, 2, 3.8952))
sketch8.addConstraint(Sketcher.Constraint("DistanceY", -1, 1, 0, 2, 11.645))
sketch8.addConstraint(Sketcher.Constraint("DistanceX", -1, 1, 3, 2, 10.117))
pocket5 = doc.addObject("PartDesign::Pocket", "Pocket004")
body.addObject(pocket5)
pocket5.Profile = sketch8
pocket5.Length = 0.9
pocket5.Reversed = True

# Sketch on XZ plane
sketch9 = doc.addObject("Sketcher::SketchObject", "Sketch008")
body.addObject(sketch9)
sketch9.AttachmentSupport = (doc.XZ_Plane, [""])
sketch9.MapMode = "FlatFace"
sketch9.AttachmentOffset = App.Placement(Vector(0, 0, -2.8), App.Rotation())
sketch9.addGeometry(Part.LineSegment(Vector(20.2127, -14.588, 0), Vector(22.8059, -14.588, 0)), False)
sketch9.addGeometry(Part.LineSegment(Vector(22.8059, -14.588, 0), Vector(21.0218, -15.3971, 0)), False)
sketch9.addGeometry(Part.LineSegment(Vector(21.0218, -15.3971, 0), Vector(20.2127, -14.588, 0)), False)
sketch9.addConstraint(Sketcher.Constraint("Coincident", 0, 2, 1, 1))
sketch9.addConstraint(Sketcher.Constraint("Coincident", 1, 2, 2, 1))
sketch9.addConstraint(Sketcher.Constraint("Coincident", 2, 2, 0, 1))
sketch9.addConstraint(Sketcher.Constraint("Horizontal", 0))
sketch9.addConstraint(Sketcher.Constraint("Angle", 2, Q("135 deg")))
sketch9.addConstraint(Sketcher.Constraint("Distance", 1, 1.959))
sketch9.addConstraint(Sketcher.Constraint("DistanceX", 0, 1, 0, 2, 2.5932))
sketch9.addConstraint(Sketcher.Constraint("DistanceX", -1, 1, 0, 2, 22.806))
sketch9.addConstraint(Sketcher.Constraint("DistanceY", 0, 2, -1, 1, 14.588))
pad3 = doc.addObject("PartDesign::Pad", "Pad002")
body.addObject(pad3)
pad3.Profile = sketch9
pad3.Length = 0.9
pad3.Reversed = True

# Sketch on XZ plane
sketch10 = doc.addObject("Sketcher::SketchObject", "Sketch009")
body.addObject(sketch10)
sketch10.AttachmentSupport = (doc.XZ_Plane, [""])
sketch10.MapMode = "FlatFace"
sketch10.AttachmentOffset = App.Placement(Vector(0, 0, -2.8), App.Rotation())
sketch10.addGeometry(Part.LineSegment(Vector(21.0218, 11.6451, 0), Vector(21.0218, 10.8363, 0)), False)
sketch10.addGeometry(Part.LineSegment(Vector(21.0218, 10.8363, 0), Vector(20.2129, 10.8363, 0)), False)
sketch10.addGeometry(Part.LineSegment(Vector(20.2129, 10.8363, 0), Vector(21.0218, 11.6451, 0)), False)
sketch10.addConstraint(Sketcher.Constraint("Coincident", 0, 2, 1, 1))
sketch10.addConstraint(Sketcher.Constraint("Coincident", 1, 2, 2, 1))
sketch10.addConstraint(Sketcher.Constraint("Coincident", 2, 2, 0, 1))
sketch10.addConstraint(Sketcher.Constraint("Vertical", 0))
sketch10.addConstraint(Sketcher.Constraint("Horizontal", 1))
sketch10.addConstraint(Sketcher.Constraint("Equal", 1, 0))
sketch10.addConstraint(Sketcher.Constraint("DistanceX", 1, 2, 1, 1, 0.809))
sketch10.addConstraint(Sketcher.Constraint("DistanceX", -1, 1, 1, 2, 20.213))
sketch10.addConstraint(Sketcher.Constraint("DistanceY", -1, 1, 2, 2, 11.645))
pad4 = doc.addObject("PartDesign::Pad", "Pad003")
body.addObject(pad4)
pad4.Profile = sketch10
pad4.Length = 0.3
pad4.Reversed = True

# Sketch on XZ plane
sketch11 = doc.addObject("Sketcher::SketchObject", "Sketch010")
body.addObject(sketch11)
sketch11.AttachmentSupport = (doc.XZ_Plane, [""])
sketch11.MapMode = "FlatFace"
sketch11.AttachmentOffset = App.Placement(Vector(0, 0, -2.8), App.Rotation())
sketch11.addGeometry(Part.LineSegment(Vector(22.8052, 10.8363, 0), Vector(21.0218, 10.8363, 0)), False)
sketch11.addGeometry(Part.LineSegment(Vector(21.0218, 10.8363, 0), Vector(21.0218, 11.6451, 0)), False)
sketch11.addGeometry(Part.LineSegment(Vector(21.0218, 11.6451, 0), Vector(22.8052, 10.8363, 0)), False)
sketch11.addConstraint(Sketcher.Constraint("Coincident", 0, 2, 1, 1))
sketch11.addConstraint(Sketcher.Constraint("Coincident", 1, 2, 2, 1))
sketch11.addConstraint(Sketcher.Constraint("Coincident", 2, 2, 0, 1))
sketch11.addConstraint(Sketcher.Constraint("Horizontal", 0))
sketch11.addConstraint(Sketcher.Constraint("Vertical", 1))
sketch11.addConstraint(Sketcher.Constraint("DistanceX", 0, 2, 0, 1, 1.7834))
sketch11.addConstraint(Sketcher.Constraint("DistanceY", 1, 1, 1, 2, 0.8088))
sketch11.addConstraint(Sketcher.Constraint("DistanceY", -1, 1, 1, 2, 11.645))
sketch11.addConstraint(Sketcher.Constraint("DistanceX", -1, 1, 0, 2, 21.0218))
pad5 = doc.addObject("PartDesign::Pad", "Pad004")
body.addObject(pad5)
pad5.Profile = sketch11
pad5.Length = 0.6
pad5.Reversed = True

doc.recompute()
